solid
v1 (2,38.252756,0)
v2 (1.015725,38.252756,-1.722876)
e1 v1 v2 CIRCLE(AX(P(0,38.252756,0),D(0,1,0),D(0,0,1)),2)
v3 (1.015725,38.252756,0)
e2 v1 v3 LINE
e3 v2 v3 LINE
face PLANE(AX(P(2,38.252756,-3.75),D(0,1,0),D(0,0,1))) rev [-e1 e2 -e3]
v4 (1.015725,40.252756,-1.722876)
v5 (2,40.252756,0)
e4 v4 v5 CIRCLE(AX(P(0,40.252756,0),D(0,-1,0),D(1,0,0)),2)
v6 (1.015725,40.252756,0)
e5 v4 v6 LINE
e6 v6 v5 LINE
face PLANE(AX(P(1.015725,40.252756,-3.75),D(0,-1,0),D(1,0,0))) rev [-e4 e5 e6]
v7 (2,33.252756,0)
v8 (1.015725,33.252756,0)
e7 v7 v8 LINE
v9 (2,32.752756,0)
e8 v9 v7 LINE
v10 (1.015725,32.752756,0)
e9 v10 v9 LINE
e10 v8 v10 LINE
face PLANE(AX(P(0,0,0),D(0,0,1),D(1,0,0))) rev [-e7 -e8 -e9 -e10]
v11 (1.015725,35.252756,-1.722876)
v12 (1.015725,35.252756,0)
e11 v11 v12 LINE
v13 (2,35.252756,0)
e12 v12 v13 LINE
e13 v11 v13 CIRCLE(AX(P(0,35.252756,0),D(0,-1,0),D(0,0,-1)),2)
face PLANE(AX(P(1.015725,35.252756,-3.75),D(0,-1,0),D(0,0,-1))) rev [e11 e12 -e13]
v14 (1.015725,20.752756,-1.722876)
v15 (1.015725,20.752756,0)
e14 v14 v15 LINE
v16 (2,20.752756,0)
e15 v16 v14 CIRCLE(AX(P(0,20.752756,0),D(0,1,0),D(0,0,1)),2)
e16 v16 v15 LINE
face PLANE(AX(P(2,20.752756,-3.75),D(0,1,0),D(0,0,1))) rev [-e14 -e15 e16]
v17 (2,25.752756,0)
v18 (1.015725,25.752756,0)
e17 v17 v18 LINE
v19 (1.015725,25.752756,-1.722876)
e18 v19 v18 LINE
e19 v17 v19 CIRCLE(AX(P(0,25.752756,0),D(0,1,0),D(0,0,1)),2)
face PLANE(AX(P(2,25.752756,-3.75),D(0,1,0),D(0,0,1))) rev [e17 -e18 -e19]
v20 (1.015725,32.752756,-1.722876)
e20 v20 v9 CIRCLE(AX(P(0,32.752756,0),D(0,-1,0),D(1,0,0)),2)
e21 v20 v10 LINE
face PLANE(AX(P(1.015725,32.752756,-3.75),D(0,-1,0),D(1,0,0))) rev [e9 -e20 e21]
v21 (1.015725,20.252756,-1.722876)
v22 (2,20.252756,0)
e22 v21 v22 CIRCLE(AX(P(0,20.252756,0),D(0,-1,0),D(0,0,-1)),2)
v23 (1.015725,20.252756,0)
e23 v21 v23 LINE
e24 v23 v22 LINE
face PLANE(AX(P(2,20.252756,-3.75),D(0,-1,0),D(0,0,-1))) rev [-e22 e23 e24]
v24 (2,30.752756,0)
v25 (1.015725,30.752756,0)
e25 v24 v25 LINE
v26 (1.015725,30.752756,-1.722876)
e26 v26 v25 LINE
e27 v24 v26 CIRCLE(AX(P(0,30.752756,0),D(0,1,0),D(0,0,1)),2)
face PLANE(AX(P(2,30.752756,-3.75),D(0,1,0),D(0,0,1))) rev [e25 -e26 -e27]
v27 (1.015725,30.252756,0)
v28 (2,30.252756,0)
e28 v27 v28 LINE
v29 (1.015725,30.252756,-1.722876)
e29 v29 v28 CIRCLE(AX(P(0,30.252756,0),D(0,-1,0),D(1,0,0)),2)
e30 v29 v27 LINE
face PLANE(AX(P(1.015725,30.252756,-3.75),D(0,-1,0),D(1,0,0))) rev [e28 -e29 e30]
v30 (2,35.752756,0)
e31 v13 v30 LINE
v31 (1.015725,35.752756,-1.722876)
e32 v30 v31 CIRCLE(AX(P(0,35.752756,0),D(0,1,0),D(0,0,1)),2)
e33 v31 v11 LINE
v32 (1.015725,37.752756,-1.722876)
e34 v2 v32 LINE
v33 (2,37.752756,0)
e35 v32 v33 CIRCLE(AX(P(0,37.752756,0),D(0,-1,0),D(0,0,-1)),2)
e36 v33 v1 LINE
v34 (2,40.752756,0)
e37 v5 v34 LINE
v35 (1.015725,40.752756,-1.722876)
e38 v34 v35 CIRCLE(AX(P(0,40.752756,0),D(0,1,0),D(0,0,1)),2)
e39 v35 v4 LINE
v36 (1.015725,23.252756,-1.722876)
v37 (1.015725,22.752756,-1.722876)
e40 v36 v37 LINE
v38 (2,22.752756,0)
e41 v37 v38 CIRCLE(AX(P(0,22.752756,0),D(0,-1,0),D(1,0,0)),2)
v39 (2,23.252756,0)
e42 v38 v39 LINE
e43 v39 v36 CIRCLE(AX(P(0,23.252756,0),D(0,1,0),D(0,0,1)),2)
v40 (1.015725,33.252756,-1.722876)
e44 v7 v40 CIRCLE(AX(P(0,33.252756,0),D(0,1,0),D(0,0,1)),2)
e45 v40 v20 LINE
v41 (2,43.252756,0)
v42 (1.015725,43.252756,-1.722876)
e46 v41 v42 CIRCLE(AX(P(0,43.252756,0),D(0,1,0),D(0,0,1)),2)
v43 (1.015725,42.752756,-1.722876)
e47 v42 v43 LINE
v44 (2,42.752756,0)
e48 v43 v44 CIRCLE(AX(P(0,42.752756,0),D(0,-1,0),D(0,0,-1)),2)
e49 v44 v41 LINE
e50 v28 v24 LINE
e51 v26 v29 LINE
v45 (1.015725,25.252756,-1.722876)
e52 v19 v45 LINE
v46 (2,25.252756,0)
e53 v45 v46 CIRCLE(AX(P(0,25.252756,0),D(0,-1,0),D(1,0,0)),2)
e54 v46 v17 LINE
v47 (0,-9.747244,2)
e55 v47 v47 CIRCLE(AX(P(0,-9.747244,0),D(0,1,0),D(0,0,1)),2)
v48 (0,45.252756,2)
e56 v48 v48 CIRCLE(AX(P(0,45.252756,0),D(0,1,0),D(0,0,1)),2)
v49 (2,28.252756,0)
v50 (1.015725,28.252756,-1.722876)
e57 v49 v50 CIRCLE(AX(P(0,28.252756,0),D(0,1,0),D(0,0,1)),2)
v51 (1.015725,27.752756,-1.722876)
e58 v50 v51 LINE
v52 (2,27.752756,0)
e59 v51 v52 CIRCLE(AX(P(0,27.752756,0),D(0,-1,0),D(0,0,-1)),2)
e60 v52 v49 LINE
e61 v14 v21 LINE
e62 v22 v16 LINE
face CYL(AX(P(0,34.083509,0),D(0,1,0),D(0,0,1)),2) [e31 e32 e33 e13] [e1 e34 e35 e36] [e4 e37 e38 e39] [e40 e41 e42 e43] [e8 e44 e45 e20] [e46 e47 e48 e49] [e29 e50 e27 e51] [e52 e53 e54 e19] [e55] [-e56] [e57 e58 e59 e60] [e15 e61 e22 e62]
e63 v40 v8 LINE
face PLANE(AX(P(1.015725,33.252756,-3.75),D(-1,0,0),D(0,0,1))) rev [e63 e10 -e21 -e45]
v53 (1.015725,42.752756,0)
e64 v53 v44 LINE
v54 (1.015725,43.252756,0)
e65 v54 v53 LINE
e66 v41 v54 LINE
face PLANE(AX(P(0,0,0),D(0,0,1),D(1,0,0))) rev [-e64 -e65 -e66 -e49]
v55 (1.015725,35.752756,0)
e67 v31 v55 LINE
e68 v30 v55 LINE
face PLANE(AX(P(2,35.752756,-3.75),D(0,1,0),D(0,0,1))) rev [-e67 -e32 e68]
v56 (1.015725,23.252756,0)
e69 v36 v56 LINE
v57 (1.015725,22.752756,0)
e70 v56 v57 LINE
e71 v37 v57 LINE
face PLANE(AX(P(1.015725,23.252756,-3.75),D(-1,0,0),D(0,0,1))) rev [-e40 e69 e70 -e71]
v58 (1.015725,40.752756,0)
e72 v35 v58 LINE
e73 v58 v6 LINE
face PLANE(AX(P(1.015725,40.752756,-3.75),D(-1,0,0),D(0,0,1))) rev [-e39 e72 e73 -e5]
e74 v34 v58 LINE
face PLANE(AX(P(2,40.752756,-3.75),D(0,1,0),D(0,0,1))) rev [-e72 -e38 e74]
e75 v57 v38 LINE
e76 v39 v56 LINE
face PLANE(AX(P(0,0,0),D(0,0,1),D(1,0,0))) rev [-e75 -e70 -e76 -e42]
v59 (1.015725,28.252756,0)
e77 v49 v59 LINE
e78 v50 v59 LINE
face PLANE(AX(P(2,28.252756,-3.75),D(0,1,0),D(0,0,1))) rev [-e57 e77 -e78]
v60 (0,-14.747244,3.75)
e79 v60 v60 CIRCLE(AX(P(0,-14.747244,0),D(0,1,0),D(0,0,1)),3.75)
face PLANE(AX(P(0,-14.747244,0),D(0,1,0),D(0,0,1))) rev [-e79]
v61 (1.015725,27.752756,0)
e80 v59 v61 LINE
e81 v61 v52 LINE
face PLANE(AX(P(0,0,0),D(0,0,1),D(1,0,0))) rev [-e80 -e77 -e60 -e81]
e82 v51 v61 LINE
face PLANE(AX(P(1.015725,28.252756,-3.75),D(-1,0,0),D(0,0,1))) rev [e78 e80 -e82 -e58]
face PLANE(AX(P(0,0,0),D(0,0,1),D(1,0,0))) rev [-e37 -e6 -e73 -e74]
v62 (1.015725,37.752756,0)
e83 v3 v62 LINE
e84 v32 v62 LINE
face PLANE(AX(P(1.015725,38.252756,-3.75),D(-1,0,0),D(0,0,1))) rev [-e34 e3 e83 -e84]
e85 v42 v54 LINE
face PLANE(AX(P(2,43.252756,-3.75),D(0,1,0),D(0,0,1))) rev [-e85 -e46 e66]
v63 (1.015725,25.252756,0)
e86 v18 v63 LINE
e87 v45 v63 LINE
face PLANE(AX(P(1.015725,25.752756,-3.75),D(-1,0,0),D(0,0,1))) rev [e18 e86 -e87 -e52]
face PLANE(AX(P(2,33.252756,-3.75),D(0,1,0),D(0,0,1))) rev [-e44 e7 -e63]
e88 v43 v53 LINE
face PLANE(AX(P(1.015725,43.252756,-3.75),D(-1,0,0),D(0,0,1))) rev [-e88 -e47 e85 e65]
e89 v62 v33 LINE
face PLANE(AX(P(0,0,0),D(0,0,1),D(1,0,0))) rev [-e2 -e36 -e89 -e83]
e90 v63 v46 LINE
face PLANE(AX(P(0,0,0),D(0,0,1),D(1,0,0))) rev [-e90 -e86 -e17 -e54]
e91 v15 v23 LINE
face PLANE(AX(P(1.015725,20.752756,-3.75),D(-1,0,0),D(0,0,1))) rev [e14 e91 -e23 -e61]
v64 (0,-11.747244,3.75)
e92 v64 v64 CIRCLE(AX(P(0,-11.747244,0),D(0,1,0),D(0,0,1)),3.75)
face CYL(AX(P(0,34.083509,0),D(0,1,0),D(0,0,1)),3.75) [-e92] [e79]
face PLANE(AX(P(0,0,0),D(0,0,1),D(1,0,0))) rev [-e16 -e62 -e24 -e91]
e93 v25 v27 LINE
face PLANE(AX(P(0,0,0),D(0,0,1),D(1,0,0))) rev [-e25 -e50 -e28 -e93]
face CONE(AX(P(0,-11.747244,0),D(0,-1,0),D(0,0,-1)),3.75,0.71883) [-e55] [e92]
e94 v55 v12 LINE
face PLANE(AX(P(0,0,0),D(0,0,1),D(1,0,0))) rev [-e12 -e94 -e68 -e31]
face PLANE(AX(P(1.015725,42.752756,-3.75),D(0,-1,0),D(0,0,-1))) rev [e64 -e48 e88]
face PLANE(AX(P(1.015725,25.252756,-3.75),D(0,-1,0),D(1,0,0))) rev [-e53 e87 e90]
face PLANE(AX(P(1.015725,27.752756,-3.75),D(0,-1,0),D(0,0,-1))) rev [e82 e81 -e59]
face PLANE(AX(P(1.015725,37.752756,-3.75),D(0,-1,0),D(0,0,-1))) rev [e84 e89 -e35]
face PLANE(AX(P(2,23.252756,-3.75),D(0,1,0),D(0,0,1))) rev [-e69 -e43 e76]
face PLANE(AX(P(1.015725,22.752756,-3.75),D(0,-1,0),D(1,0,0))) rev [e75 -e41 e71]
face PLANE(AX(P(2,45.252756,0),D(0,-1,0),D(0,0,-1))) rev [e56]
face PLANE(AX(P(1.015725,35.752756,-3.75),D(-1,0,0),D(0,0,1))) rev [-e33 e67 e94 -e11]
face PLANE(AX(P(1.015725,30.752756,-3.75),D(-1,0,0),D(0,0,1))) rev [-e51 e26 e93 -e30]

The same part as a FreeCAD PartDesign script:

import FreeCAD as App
import Part
import Sketcher
from FreeCAD import Vector
Q = App.Units.Quantity

doc = App.newDocument("Part")
body = doc.addObject("PartDesign::Body", "Body")

# Sketch on XY plane
sketch1 = body.newObject("Sketcher::SketchObject", "Sketch")
sketch1.AttachmentSupport = (doc.getObject("XY_Plane"), [""])
sketch1.MapMode = "FlatFace"
sketch1.addGeometry([
    Part.LineSegment(Vector(0, -14.7, 0), Vector(3.8, -14.7, 0)),  # 0
    Part.LineSegment(Vector(3.8, -14.7, 0), Vector(3.8, -11.7, 0)),  # 1
    Part.LineSegment(Vector(3.8, -11.7, 0), Vector(2, -9.7, 0)),  # 2
    Part.LineSegment(Vector(2, -9.7, 0), Vector(2, 45.3, 0)),  # 3
    Part.LineSegment(Vector(2, 45.3, 0), Vector(0, 45.3, 0)),  # 4
    Part.LineSegment(Vector(0, 45.3, 0), Vector(0, -14.7, 0)),  # 5
], False)
sketch1.addConstraint([
    Sketcher.Constraint("Coincident", 0, 2, 1, 1),
    Sketcher.Constraint("Coincident", 1, 2, 2, 1),
    Sketcher.Constraint("Coincident", 2, 2, 3, 1),
    Sketcher.Constraint("Coincident", 3, 2, 4, 1),
    Sketcher.Constraint("Coincident", 4, 2, 5, 1),
    Sketcher.Constraint("Coincident", 5, 2, 0, 1),
    Sketcher.Constraint("Horizontal", 0),
    Sketcher.Constraint("Vertical", 1),
    Sketcher.Constraint("Vertical", 3),
    Sketcher.Constraint("Horizontal", 4),
    Sketcher.Constraint("Vertical", 5),
    Sketcher.Constraint("PointOnObject", 4, 2, -2),
    Sketcher.Constraint("DistanceX", 4, 2, 4, 1, Q("2 mm")),
    Sketcher.Constraint("DistanceY", 1, 1, 1, 2, Q("3 mm")),
    Sketcher.Constraint("DistanceY", 3, 1, 3, 2, Q("55 mm")),
    Sketcher.Constraint("DistanceY", 5, 2, 5, 1, Q("60 mm")),
    Sketcher.Constraint("DistanceX", 0, 1, 0, 2, Q("3.75 mm")),
    Sketcher.Constraint("DistanceY", 0, 2, -1, 1, Q("14.747244 mm")),
])
revolution = body.newObject("PartDesign::Revolution", "Revolution")
revolution.Profile = sketch1
revolution.ReferenceAxis = (sketch1, ["V_Axis"])
revolution.Angle = 360

# Sketch on XY plane
sketch2 = body.newObject("Sketcher::SketchObject", "Sketch001")
sketch2.AttachmentSupport = (doc.getObject("XY_Plane"), [""])
sketch2.MapMode = "FlatFace"
sketch2.addGeometry([
    Part.LineSegment(Vector(2, 45.3, 0), Vector(2, 43.3, 0)),  # 0
    Part.LineSegment(Vector(2, 43.3, 0), Vector(1, 43.3, 0)),  # 1
    Part.LineSegment(Vector(1, 43.3, 0), Vector(1, 42.8, 0)),  # 2
    Part.LineSegment(Vector(1, 42.8, 0), Vector(2, 42.8, 0)),  # 3
    Part.LineSegment(Vector(2, 42.8, 0), Vector(2, 40.8, 0)),  # 4
    Part.LineSegment(Vector(2, 40.8, 0), Vector(1, 40.8, 0)),  # 5
    Part.LineSegment(Vector(1, 40.8, 0), Vector(1, 40.3, 0)),  # 6
    Part.LineSegment(Vector(1, 40.3, 0), Vector(2, 40.3, 0)),  # 7
    Part.LineSegment(Vector(2, 40.3, 0), Vector(2, 38.3, 0)),  # 8
    Part.LineSegment(Vector(2, 38.3, 0), Vector(1, 38.3, 0)),  # 9
    Part.LineSegment(Vector(1, 38.3, 0), Vector(1, 37.8, 0)),  # 10
    Part.LineSegment(Vector(1, 37.8, 0), Vector(2, 37.8, 0)),  # 11
    Part.LineSegment(Vector(2, 37.8, 0), Vector(2, 35.8, 0)),  # 12
    Part.LineSegment(Vector(2, 35.8, 0), Vector(1, 35.8, 0)),  # 13
    Part.LineSegment(Vector(1, 35.8, 0), Vector(1, 35.3, 0)),  # 14
    Part.LineSegment(Vector(1, 35.3, 0), Vector(2, 35.3, 0)),  # 15
    Part.LineSegment(Vector(2, 35.3, 0), Vector(2, 33.3, 0)),  # 16
    Part.LineSegment(Vector(2, 33.3, 0), Vector(1, 33.3, 0)),  # 17
    Part.LineSegment(Vector(1, 33.3, 0), Vector(1, 32.8, 0)),  # 18
    Part.LineSegment(Vector(1, 32.8, 0), Vector(2, 32.8, 0)),  # 19
    Part.LineSegment(Vector(2, 32.8, 0), Vector(2, 30.8, 0)),  # 20
    Part.LineSegment(Vector(2, 30.8, 0), Vector(1, 30.8, 0)),  # 21
    Part.LineSegment(Vector(1, 30.8, 0), Vector(1, 30.3, 0)),  # 22
    Part.LineSegment(Vector(1, 30.3, 0), Vector(2, 30.3, 0)),  # 23
    Part.LineSegment(Vector(2, 30.3, 0), Vector(2, 28.3, 0)),  # 24
    Part.LineSegment(Vector(2, 28.3, 0), Vector(1, 28.3, 0)),  # 25
    Part.LineSegment(Vector(1, 28.3, 0), Vector(1, 27.8, 0)),  # 26
    Part.LineSegment(Vector(1, 27.8, 0), Vector(2, 27.8, 0)),  # 27
    Part.LineSegment(Vector(2, 27.8, 0), Vector(2, 25.8, 0)),  # 28
    Part.LineSegment(Vector(2, 25.8, 0), Vector(1, 25.8, 0)),  # 29
    Part.LineSegment(Vector(1, 25.8, 0), Vector(1, 25.3, 0)),  # 30
    Part.LineSegment(Vector(1, 25.3, 0), Vector(2, 25.3, 0)),  # 31
    Part.LineSegment(Vector(2, 25.3, 0), Vector(2, 23.3, 0)),  # 32
    Part.LineSegment(Vector(2, 23.3, 0), Vector(1, 23.3, 0)),  # 33
    Part.LineSegment(Vector(1, 23.3, 0), Vector(1, 22.8, 0)),  # 34
    Part.LineSegment(Vector(1, 22.8, 0), Vector(2, 22.8, 0)),  # 35
    Part.LineSegment(Vector(2, 22.8, 0), Vector(2, 20.8, 0)),  # 36
    Part.LineSegment(Vector(2, 20.8, 0), Vector(1, 20.8, 0)),  # 37
    Part.LineSegment(Vector(1, 20.8, 0), Vector(1, 20.3, 0)),  # 38
    Part.LineSegment(Vector(1, 20.3, 0), Vector(3.9, 20.3, 0)),  # 39
    Part.LineSegment(Vector(3.9, 20.3, 0), Vector(3.9, 45.3, 0)),  # 40
    Part.LineSegment(Vector(3.9, 45.3, 0), Vector(2, 45.3, 0)),  # 41
], False)
sketch2.addConstraint([
    Sketcher.Constraint("Coincident", 0, 2, 1, 1),
    Sketcher.Constraint("Coincident", 1, 2, 2, 1),
    Sketcher.Constraint("Coincident", 2, 2, 3, 1),
    Sketcher.Constraint("Coincident", 3, 2, 4, 1),
    Sketcher.Constraint("Coincident", 4, 2, 5, 1),
    Sketcher.Constraint("Coincident", 5, 2, 6, 1),
    Sketcher.Constraint("Coincident", 6, 2, 7, 1),
    Sketcher.Constraint("Coincident", 7, 2, 8, 1),
    Sketcher.Constraint("Coincident", 8, 2, 9, 1),
    Sketcher.Constraint("Coincident", 9, 2, 10, 1),
    Sketcher.Constraint("Coincident", 10, 2, 11, 1),
    Sketcher.Constraint("Coincident", 11, 2, 12, 1),
    Sketcher.Constraint("Coincident", 12, 2, 13, 1),
    Sketcher.Constraint("Coincident", 13, 2, 14, 1),
    Sketcher.Constraint("Coincident", 14, 2, 15, 1),
    Sketcher.Constraint("Coincident", 15, 2, 16, 1),
    Sketcher.Constraint("Coincident", 16, 2, 17, 1),
    Sketcher.Constraint("Coincident", 17, 2, 18, 1),
    Sketcher.Constraint("Coincident", 18, 2, 19, 1),
    Sketcher.Constraint("Coincident", 19, 2, 20, 1),
    Sketcher.Constraint("Coincident", 20, 2, 21, 1),
    Sketcher.Constraint("Coincident", 21, 2, 22, 1),
    Sketcher.Constraint("Coincident", 22, 2, 23, 1),
    Sketcher.Constraint("Coincident", 23, 2, 24, 1),
    Sketcher.Constraint("Coincident", 24, 2, 25, 1),
    Sketcher.Constraint("Coincident", 25, 2, 26, 1),
    Sketcher.Constraint("Coincident", 26, 2, 27, 1),
    Sketcher.Constraint("Coincident", 27, 2, 28, 1),
    Sketcher.Constraint("Coincident", 28, 2, 29, 1),
    Sketcher.Constraint("Coincident", 29, 2, 30, 1),
    Sketcher.Constraint("Coincident", 30, 2, 31, 1),
    Sketcher.Constraint("Coincident", 31, 2, 32, 1),
    Sketcher.Constraint("Coincident", 32, 2, 33, 1),
    Sketcher.Constraint("Coincident", 33, 2, 34, 1),
    Sketcher.Constraint("Coincident", 34, 2, 35, 1),
    Sketcher.Constraint("Coincident", 35, 2, 36, 1),
    Sketcher.Constraint("Coincident", 36, 2, 37, 1),
    Sketcher.Constraint("Coincident", 37, 2, 38, 1),
    Sketcher.Constraint("Coincident", 38, 2, 39, 1),
    Sketcher.Constraint("Coincident", 39, 2, 40, 1),
    Sketcher.Constraint("Coincident", 40, 2, 41, 1),
    Sketcher.Constraint("Coincident", 41, 2, 0, 1),
    Sketcher.Constraint("Vertical", 0),
    Sketcher.Constraint("Horizontal", 1),
    Sketcher.Constraint("Vertical", 2),
    Sketcher.Constraint("Horizontal", 3),
    Sketcher.Constraint("Vertical", 4),
    Sketcher.Constraint("Horizontal", 5),
    Sketcher.Constraint("Vertical", 6),
    Sketcher.Constraint("Horizontal", 7),
    Sketcher.Constraint("Vertical", 8),
    Sketcher.Constraint("Horizontal", 9),
    Sketcher.Constraint("Vertical", 10),
    Sketcher.Constraint("Horizontal", 11),
    Sketcher.Constraint("Vertical", 12),
    Sketcher.Constraint("Horizontal", 13),
    Sketcher.Constraint("Vertical", 14),
    Sketcher.Constraint("Horizontal", 15),
    Sketcher.Constraint("Vertical", 16),
    Sketcher.Constraint("Horizontal", 17),
    Sketcher.Constraint("Vertical", 18),
    Sketcher.Constraint("Horizontal", 19),
    Sketcher.Constraint("Vertical", 20),
    Sketcher.Constraint("Horizontal", 21),
    Sketcher.Constraint("Vertical", 22),
    Sketcher.Constraint("Horizontal", 23),
    Sketcher.Constraint("Vertical", 24),
    Sketcher.Constraint("Horizontal", 25),
    Sketcher.Constraint("Vertical", 26),
    Sketcher.Constraint("Horizontal", 27),
    Sketcher.Constraint("Vertical", 28),
    Sketcher.Constraint("Horizontal", 29),
    Sketcher.Constraint("Vertical", 30),
    Sketcher.Constraint("Horizontal", 31),
    Sketcher.Constraint("Vertical", 32),
    Sketcher.Constraint("Horizontal", 33),
    Sketcher.Constraint("Vertical", 34),
    Sketcher.Constraint("Horizontal", 35),
    Sketcher.Constraint("Vertical", 36),
    Sketcher.Constraint("Horizontal", 37),
    Sketcher.Constraint("Vertical", 38),
    Sketcher.Constraint("Horizontal", 39),
    Sketcher.Constraint("Vertical", 40),
    Sketcher.Constraint("Horizontal", 41),
    Sketcher.Constraint("Vertical", 0, 2, 3, 2),
    Sketcher.Constraint("Vertical", 2, 2, 5, 2),
    Sketcher.Constraint("Vertical", 4, 2, 7, 2),
    Sketcher.Constraint("Vertical", 6, 2, 9, 2),
    Sketcher.Constraint("Vertical", 8, 2, 11, 2),
    Sketcher.Constraint("Vertical", 10, 2, 13, 2),
    Sketcher.Constraint("Vertical", 12, 2, 15, 2),
    Sketcher.Constraint("Vertical", 14, 2, 17, 2),
    Sketcher.Constraint("Vertical", 16, 2, 19, 2),
    Sketcher.Constraint("Vertical", 18, 2, 21, 2),
    Sketcher.Constraint("Vertical", 20, 2, 23, 2),
    Sketcher.Constraint("Vertical", 22, 2, 25, 2),
    Sketcher.Constraint("Vertical", 24, 2, 27, 2),
    Sketcher.Constraint("Vertical", 26, 2, 29, 2),
    Sketcher.Constraint("Vertical", 28, 2, 31, 2),
    Sketcher.Constraint("Vertical", 30, 2, 33, 2),
    Sketcher.Constraint("Vertical", 32, 2, 35, 2),
    Sketcher.Constraint("Vertical", 34, 2, 37, 2),
    Sketcher.Constraint("Equal", 0, 4),
    Sketcher.Constraint("Equal", 2, 6),
    Sketcher.Constraint("Equal", 4, 8),
    Sketcher.Constraint("Equal", 6, 10),
    Sketcher.Constraint("Equal", 8, 12),
    Sketcher.Constraint("Equal", 10, 14),
    Sketcher.Constraint("Equal", 12, 16),
    Sketcher.Constraint("Equal", 14, 18),
    Sketcher.Constraint("Equal", 16, 20),
    Sketcher.Constraint("Equal", 18, 22),
    Sketcher.Constraint("Equal", 20, 24),
    Sketcher.Constraint("Equal", 22, 26),
    Sketcher.Constraint("Equal", 24, 28),
    Sketcher.Constraint("Equal", 26, 30),
    Sketcher.Constraint("Equal", 28, 32),
    Sketcher.Constraint("Equal", 30, 34),
    Sketcher.Constraint("Equal", 32, 36),
    Sketcher.Constraint("Equal", 34, 38),
    Sketcher.Constraint("DistanceY", 0, 2, 0, 1, Q("2 mm")),
    Sketcher.Constraint("DistanceY", 40, 1, 40, 2, Q("25 mm")),
    Sketcher.Constraint("DistanceX", -1, 1, 0, 2, Q("2 mm")),
    Sketcher.Constraint("DistanceX", 39, 1, 39, 2, Q("2.919131 mm")),
    Sketcher.Constraint("DistanceX", 1, 2, 1, 1, Q("0.984275 mm")),
    Sketcher.Constraint("DistanceY", -1, 1, 0, 2, Q("43.252756 mm")),
])
pocket1 = body.newObject("PartDesign::Pocket", "Pocket")
pocket1.Profile = sketch2
pocket1.Type = "ThroughAll"

doc.recompute()
